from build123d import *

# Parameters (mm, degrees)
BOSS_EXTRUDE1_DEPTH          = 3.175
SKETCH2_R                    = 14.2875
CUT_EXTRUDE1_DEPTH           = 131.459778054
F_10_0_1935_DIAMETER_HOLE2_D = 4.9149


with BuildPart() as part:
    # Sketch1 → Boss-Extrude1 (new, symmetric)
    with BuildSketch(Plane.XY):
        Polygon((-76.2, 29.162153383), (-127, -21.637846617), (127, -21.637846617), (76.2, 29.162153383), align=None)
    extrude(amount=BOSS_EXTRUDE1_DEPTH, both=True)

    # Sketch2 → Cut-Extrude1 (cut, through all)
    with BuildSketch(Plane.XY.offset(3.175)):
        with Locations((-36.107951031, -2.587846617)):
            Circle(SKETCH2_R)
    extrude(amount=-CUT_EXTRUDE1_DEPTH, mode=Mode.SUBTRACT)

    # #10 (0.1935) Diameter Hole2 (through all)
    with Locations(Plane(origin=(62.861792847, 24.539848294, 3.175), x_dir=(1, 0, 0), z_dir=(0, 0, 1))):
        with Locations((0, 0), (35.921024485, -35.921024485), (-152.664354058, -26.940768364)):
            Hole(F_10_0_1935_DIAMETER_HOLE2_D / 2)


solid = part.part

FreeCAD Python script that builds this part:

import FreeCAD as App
import Part
import Sketcher

V = App.Vector
Q = App.Units.Quantity

doc = App.newDocument("Part")
params = doc.addObject("Spreadsheet::Sheet", "Params")
for row, (alias, value) in enumerate([
    ("sketch1_width", "10 in"),
    ("sketch1_width2", "6 in"),
    ("pad1_length", "0.25 in"),
    ("sketch2_diameter", "1.125 in"),
    ("hole_diameter", "0.1935 in"),
], start=1):
    params.set(f"A{row}", alias)
    params.set(f"B{row}", "=" + value)
    params.setAlias(f"B{row}", alias)

body = doc.addObject("PartDesign::Body", "Body")

sketch1 = body.newObject("Sketcher::SketchObject", "Sketch")
sketch1.AttachmentSupport = (doc.getObject("XY_Plane"), [""])
sketch1.MapMode = "FlatFace"
sketch1.addGeometry([
    Part.LineSegment(V(-76, 29, 0), V(-127, -22, 0)),
    Part.LineSegment(V(-127, -22, 0), V(127, -22, 0)),
    Part.LineSegment(V(127, -22, 0), V(76, 29, 0)),
    Part.LineSegment(V(76, 29, 0), V(-76, 29, 0)),
], False)
sketch1.addConstraint([
    Sketcher.Constraint("Coincident", 0, 2, 1, 1),
    Sketcher.Constraint("Coincident", 1, 2, 2, 1),
    Sketcher.Constraint("Coincident", 2, 2, 3, 1),
    Sketcher.Constraint("Coincident", 3, 2, 0, 1),
    Sketcher.Constraint("Horizontal", 1),
    Sketcher.Constraint("Horizontal", 3),
    Sketcher.Constraint("Perpendicular", 0, 2),
    Sketcher.Constraint("Equal", 0, 2),
    Sketcher.Constraint("DistanceX", 1, 1, 1, 2, Q("10 in")),
    Sketcher.Constraint("DistanceX", 3, 2, 3, 1, Q("6 in")),
    Sketcher.Constraint("DistanceX", 0, 2, -1, 1, Q("5 in")),
    Sketcher.Constraint("DistanceY", 0, 2, -1, 1, Q("21.637847 mm")),
])
sketch1.setExpression("Constraints[8]", "Params.sketch1_width")
sketch1.setExpression("Constraints[9]", "Params.sketch1_width2")
pad1 = body.newObject("PartDesign::Pad", "Pad")
pad1.Profile = sketch1
pad1.setExpression("Length", "Params.pad1_length")
pad1.Midplane = True

sketch2 = body.newObject("Sketcher::SketchObject", "Sketch001")
sketch2.AttachmentSupport = (doc.getObject("XY_Plane"), [""])
sketch2.MapMode = "FlatFace"
sketch2.AttachmentOffset = App.Placement(V(0, 0, 0.125 * 25.4), App.Rotation())
sketch2.addGeometry(Part.Circle(V(-36, -3, 0), V(0, 0, 1), 14), False)
sketch2.addConstraint([
    Sketcher.Constraint("Diameter", 0, Q("1.125 in")),
    Sketcher.Constraint("DistanceX", 0, 3, -1, 1, Q("36.107951 mm")),
    Sketcher.Constraint("DistanceY", 0, 3, -1, 1, Q("2.587847 mm")),
])
sketch2.setExpression("Constraints[0]", "Params.sketch2_diameter")
pocket1 = body.newObject("PartDesign::Pocket", "Pocket")
pocket1.Profile = sketch2
pocket1.Type = "ThroughAll"

sketch3 = body.newObject("Sketcher::SketchObject", "Sketch002")
sketch3.AttachmentSupport = (doc.getObject("XY_Plane"), [""])
sketch3.MapMode = "FlatFace"
sketch3.AttachmentOffset = App.Placement(V(0, 0, 0.125 * 25.4), App.Rotation())
sketch3.addGeometry([
    Part.Circle(V(62.9, 24.5, 0), V(0, 0, 1), 2.5),
    Part.Circle(V(98.8, -11.4, 0), V(0, 0, 1), 2.5),
    Part.Circle(V(-89.8, -2.4, 0), V(0, 0, 1), 2.5),
], False)
sketch3.addConstraint([
    Sketcher.Constraint("Equal", 0, 1),
    Sketcher.Constraint("Equal", 1, 2),
    Sketcher.Constraint("Diameter", 0, Q("0.1935 in")),
    Sketcher.Constraint("DistanceY", -1, 1, 0, 3, Q("24.539848 mm")),
    Sketcher.Constraint("DistanceX", 2, 3, -1, 1, Q("89.802561 mm")),
    Sketcher.Constraint("DistanceY", 2, 3, -1, 1, Q("2.40092 mm")),
    Sketcher.Constraint("DistanceX", 2, 3, 1, 3, Q("188.585379 mm")),
    Sketcher.Constraint("DistanceX", -1, 1, 0, 3, Q("62.861793 mm")),
    Sketcher.Constraint("DistanceY", 1, 3, -1, 1, Q("11.381176 mm")),
])
doc.recompute()
hole = body.newObject("PartDesign::Hole", "Hole")
hole.Profile = sketch3
hole.ThreadType = "None"
hole.setExpression("Diameter", "Params.hole_diameter")
hole.DepthType = "ThroughAll"

doc.recompute()
